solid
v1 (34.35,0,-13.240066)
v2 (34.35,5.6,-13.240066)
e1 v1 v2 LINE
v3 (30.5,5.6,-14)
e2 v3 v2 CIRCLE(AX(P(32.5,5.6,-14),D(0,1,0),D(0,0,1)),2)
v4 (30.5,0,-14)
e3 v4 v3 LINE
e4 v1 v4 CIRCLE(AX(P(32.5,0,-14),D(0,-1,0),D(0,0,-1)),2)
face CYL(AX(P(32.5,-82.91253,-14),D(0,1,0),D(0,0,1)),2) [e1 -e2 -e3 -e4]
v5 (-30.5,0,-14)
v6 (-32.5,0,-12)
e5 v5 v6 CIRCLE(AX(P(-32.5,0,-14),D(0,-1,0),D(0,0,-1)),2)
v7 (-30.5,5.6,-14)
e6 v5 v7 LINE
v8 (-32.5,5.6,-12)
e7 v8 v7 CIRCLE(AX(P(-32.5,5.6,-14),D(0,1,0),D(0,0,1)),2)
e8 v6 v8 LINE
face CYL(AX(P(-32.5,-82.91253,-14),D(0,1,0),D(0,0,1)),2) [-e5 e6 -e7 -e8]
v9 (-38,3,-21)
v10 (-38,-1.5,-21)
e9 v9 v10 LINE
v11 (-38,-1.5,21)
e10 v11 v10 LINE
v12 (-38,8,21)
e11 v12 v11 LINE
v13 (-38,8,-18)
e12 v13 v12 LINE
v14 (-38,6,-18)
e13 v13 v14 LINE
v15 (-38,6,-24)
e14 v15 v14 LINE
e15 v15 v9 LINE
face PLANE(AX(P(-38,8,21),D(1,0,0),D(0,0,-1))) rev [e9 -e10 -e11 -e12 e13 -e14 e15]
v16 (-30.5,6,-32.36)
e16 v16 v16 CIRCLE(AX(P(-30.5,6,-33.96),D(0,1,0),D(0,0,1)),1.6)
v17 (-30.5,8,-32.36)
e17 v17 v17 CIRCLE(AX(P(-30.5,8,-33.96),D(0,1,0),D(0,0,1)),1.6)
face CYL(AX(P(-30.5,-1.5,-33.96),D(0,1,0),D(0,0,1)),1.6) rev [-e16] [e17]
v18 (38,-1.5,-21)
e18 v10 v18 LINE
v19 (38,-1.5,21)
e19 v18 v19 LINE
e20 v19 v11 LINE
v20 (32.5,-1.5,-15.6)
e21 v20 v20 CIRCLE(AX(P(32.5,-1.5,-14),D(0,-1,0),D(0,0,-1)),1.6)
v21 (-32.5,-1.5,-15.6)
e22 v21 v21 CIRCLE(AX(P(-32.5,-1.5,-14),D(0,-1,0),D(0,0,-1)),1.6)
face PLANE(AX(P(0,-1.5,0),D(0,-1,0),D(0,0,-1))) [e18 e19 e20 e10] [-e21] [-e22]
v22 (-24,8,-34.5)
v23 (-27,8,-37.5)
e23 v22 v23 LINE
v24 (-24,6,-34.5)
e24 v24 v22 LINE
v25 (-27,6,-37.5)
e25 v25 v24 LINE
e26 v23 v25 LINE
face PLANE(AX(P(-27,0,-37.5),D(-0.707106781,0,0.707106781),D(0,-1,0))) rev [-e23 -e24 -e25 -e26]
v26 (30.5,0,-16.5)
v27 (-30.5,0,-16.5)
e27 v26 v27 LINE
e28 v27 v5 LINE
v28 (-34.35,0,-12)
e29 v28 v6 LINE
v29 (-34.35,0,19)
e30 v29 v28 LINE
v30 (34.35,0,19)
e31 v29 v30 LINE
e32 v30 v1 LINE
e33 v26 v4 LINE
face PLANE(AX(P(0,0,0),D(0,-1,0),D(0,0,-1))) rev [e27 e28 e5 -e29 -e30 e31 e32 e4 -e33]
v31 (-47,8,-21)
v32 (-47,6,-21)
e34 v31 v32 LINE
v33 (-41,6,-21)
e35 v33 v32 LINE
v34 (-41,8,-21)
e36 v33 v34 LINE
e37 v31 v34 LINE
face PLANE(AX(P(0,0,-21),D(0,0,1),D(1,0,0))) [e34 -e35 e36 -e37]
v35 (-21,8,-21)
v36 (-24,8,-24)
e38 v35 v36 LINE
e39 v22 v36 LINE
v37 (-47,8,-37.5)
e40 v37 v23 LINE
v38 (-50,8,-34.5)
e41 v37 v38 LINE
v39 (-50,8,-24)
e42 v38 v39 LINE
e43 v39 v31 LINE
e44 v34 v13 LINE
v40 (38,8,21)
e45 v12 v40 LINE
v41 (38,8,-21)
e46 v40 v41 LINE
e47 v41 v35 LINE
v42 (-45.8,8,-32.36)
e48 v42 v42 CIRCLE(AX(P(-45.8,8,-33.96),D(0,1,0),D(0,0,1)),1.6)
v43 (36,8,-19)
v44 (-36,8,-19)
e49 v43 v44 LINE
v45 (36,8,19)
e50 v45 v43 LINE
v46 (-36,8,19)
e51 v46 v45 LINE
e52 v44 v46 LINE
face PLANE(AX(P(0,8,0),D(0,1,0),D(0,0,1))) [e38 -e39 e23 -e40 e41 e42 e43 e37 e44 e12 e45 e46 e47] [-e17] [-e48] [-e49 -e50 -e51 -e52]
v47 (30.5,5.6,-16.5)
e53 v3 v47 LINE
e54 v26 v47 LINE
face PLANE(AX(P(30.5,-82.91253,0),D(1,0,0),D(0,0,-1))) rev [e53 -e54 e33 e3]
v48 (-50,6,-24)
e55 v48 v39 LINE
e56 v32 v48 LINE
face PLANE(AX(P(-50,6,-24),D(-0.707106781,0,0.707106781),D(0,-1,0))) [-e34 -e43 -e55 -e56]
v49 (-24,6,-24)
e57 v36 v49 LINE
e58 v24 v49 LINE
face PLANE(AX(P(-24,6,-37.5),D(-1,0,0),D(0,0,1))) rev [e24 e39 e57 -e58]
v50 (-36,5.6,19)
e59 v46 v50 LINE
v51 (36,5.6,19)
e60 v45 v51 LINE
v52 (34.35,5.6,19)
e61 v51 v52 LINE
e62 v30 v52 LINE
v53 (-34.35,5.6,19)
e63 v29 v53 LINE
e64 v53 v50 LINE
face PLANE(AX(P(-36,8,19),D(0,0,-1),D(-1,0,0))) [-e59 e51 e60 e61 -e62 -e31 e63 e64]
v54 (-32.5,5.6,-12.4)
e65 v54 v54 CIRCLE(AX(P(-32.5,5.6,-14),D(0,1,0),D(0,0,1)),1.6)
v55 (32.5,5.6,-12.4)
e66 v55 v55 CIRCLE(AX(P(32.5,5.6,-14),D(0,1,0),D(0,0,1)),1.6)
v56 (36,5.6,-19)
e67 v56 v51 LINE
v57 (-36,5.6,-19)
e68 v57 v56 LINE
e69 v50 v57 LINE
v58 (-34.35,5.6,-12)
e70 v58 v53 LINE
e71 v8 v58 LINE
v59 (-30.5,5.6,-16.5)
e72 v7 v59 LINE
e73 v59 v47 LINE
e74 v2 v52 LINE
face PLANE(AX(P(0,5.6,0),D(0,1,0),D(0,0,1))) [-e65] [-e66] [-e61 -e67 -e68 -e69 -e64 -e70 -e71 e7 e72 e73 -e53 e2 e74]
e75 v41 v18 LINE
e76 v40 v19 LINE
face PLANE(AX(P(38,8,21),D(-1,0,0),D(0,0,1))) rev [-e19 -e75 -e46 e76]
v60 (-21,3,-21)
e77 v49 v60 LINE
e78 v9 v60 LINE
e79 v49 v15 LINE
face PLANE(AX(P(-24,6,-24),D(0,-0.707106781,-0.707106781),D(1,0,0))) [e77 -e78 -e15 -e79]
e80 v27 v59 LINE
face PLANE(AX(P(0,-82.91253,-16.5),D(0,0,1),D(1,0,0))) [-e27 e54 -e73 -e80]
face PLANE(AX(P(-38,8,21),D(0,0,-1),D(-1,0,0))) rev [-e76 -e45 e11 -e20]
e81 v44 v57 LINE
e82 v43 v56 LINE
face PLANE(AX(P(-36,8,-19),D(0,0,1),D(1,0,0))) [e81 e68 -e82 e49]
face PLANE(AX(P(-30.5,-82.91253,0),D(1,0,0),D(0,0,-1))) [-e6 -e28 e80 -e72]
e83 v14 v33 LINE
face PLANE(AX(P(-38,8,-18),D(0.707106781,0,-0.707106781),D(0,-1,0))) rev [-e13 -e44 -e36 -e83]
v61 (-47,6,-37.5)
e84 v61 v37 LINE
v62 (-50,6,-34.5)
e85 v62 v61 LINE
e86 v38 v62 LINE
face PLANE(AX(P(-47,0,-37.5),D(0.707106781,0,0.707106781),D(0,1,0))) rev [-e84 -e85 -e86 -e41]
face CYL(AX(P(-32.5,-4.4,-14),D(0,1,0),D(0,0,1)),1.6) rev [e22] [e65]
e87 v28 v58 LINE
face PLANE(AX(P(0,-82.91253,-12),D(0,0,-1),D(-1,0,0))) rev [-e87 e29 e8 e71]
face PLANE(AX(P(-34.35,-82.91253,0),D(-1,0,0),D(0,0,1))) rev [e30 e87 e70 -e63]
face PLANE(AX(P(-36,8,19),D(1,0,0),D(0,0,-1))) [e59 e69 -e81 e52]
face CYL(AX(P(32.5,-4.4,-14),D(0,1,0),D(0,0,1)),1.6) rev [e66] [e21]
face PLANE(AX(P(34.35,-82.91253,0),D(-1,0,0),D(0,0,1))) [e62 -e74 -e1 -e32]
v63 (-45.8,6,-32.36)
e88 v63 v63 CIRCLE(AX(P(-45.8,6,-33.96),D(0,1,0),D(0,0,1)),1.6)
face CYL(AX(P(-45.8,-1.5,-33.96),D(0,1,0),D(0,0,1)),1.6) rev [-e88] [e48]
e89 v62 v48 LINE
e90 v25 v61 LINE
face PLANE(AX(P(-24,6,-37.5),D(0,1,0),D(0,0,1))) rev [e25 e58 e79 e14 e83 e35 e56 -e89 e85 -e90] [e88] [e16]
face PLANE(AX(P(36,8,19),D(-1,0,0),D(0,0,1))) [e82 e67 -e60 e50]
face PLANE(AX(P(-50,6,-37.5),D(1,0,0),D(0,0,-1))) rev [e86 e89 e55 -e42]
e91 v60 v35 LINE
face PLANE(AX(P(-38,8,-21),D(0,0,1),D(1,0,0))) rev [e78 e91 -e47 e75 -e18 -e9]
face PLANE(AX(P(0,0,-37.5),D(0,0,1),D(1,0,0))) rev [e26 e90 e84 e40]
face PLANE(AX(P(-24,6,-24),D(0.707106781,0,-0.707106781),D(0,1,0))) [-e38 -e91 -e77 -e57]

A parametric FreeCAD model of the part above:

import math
import FreeCAD as App
import Part
import Sketcher
from FreeCAD import Vector


def edges_at(feature, points):
    """Names of the edges that pass closest to the given points."""
    edges = feature.Shape.Edges
    near = lambda p: min(range(len(edges)), key=lambda i: edges[i].distToShape(Part.Vertex(*p))[0])
    return sorted({f"Edge{near(p) + 1}" for p in points})


def add_polygon(sketch, points):
    """Adds a closed chain of lines whose ends are joined by coincident constraints."""
    first, n = sketch.GeometryCount, len(points)
    for a, b in zip(points, points[1:] + points[:1]):
        sketch.addGeometry(Part.LineSegment(App.Vector(*a, 0), App.Vector(*b, 0)), False)
    for i in range(n):
        sketch.addConstraint(Sketcher.Constraint("Coincident", first + i, 2, first + (i + 1) % n, 1))

doc = App.newDocument("Part")
body = doc.addObject("PartDesign::Body", "Body")

# Sketch on XZ plane
sketch1 = body.newObject("Sketcher::SketchObject", "Sketch")
sketch1.AttachmentSupport = (doc.getObject("XZ_Plane"), [""])
sketch1.MapMode = "FlatFace"
add_polygon(sketch1, [(-38, -21), (-38, 21), (38, 21), (38, -21)])  # lines 0-3
add_polygon(sketch1, [(36, 19), (-36, 19), (-36, -19), (36, -19)])  # lines 4-7
sketch1.addConstraint([
    Sketcher.Constraint("Vertical", 0),
    Sketcher.Constraint("Horizontal", 1),
    Sketcher.Constraint("Vertical", 2),
    Sketcher.Constraint("Horizontal", 3),
    Sketcher.Constraint("Horizontal", 4),
    Sketcher.Constraint("Vertical", 5),
    Sketcher.Constraint("Horizontal", 6),
    Sketcher.Constraint("Vertical", 7),
    Sketcher.Constraint("Symmetric", 0, 2, 2, 2, -1, 1),
    Sketcher.Constraint("Symmetric", 4, 2, 6, 2, -1, 1),
    Sketcher.Constraint("DistanceX", 1, 1, 1, 2, 76.0),
    Sketcher.Constraint("DistanceX", 4, 2, 4, 1, 72.0),
    Sketcher.Constraint("DistanceY", 0, 1, 0, 2, 42.0),
    Sketcher.Constraint("DistanceY", 5, 2, 5, 1, 38.0),
])
pad1 = body.newObject("PartDesign::Pad", "Pad")
pad1.Profile = sketch1
pad1.Length = 8
pad1.Reversed = True

# Sketch on XZ plane
sketch2 = body.newObject("Sketcher::SketchObject", "Sketch001")
sketch2.AttachmentSupport = (doc.getObject("XZ_Plane"), [""])
sketch2.MapMode = "FlatFace"
add_polygon(sketch2, [(-38, 21), (-38, -21), (38, -21), (38, 21)])  # lines 0-3
sketch2.addConstraint([
    Sketcher.Constraint("Vertical", 0),
    Sketcher.Constraint("Horizontal", 1),
    Sketcher.Constraint("Vertical", 2),
    Sketcher.Constraint("Horizontal", 3),
    Sketcher.Constraint("Symmetric", 0, 2, 2, 2, -1, 1),
    Sketcher.Constraint("DistanceX", 1, 1, 1, 2, 76.0),
    Sketcher.Constraint("DistanceY", 0, 2, 0, 1, 42.0),
])
pad2 = body.newObject("PartDesign::Pad", "Pad001")
pad2.Profile = sketch2
pad2.Length = 1.5

# Sketch on XZ plane
sketch3 = body.newObject("Sketcher::SketchObject", "Sketch002")
sketch3.AttachmentSupport = (doc.getObject("XZ_Plane"), [""])
sketch3.MapMode = "FlatFace"
sketch3.AttachmentOffset = App.Placement(Vector(0, 0, -5.6), App.Rotation())
sketch3.addGeometry([
    Part.LineSegment(Vector(34.4, 19, 0), Vector(36, 19, 0)),  # 0
    Part.LineSegment(Vector(36, 19, 0), Vector(36, -19, 0)),  # 1
    Part.LineSegment(Vector(36, -19, 0), Vector(-36, -19, 0)),  # 2
    Part.LineSegment(Vector(-36, -19, 0), Vector(-36, 19, 0)),  # 3
    Part.LineSegment(Vector(-36, 19, 0), Vector(-34.4, 19, 0)),  # 4
    Part.LineSegment(Vector(-34.4, 19, 0), Vector(-34.4, -12, 0)),  # 5
    Part.LineSegment(Vector(-34.4, -12, 0), Vector(-32.5, -12, 0)),  # 6
    Part.ArcOfCircle(Part.Circle(Vector(-32.5, -14, 0), Vector(0, 0, 1), 2), math.radians(0), math.radians(90)),  # 7
    Part.LineSegment(Vector(-30.5, -14, 0), Vector(-30.5, -16.5, 0)),  # 8
    Part.LineSegment(Vector(-30.5, -16.5, 0), Vector(30.5, -16.5, 0)),  # 9
    Part.LineSegment(Vector(30.5, -16.5, 0), Vector(30.5, -14, 0)),  # 10
    Part.ArcOfCircle(Part.Circle(Vector(32.5, -14, 0), Vector(0, 0, 1), 2), math.radians(90), math.radians(180)),  # 11
    Part.ArcOfCircle(Part.Circle(Vector(32.5, -14, 0), Vector(0, 0, 1), 2), math.radians(22), math.radians(90)),  # 12
    Part.LineSegment(Vector(34.4, -13.2, 0), Vector(34.4, 19, 0)),  # 13
], False)
sketch3.addConstraint([
    Sketcher.Constraint("Coincident", 0, 2, 1, 1),
    Sketcher.Constraint("Coincident", 1, 2, 2, 1),
    Sketcher.Constraint("Coincident", 2, 2, 3, 1),
    Sketcher.Constraint("Coincident", 3, 2, 4, 1),
    Sketcher.Constraint("Coincident", 4, 2, 5, 1),
    Sketcher.Constraint("Coincident", 5, 2, 6, 1),
    Sketcher.Constraint("Tangent", 6, 2, 7, 2),
    Sketcher.Constraint("Tangent", 7, 1, 8, 1),
    Sketcher.Constraint("Coincident", 8, 2, 9, 1),
    Sketcher.Constraint("Coincident", 9, 2, 10, 1),
    Sketcher.Constraint("Tangent", 10, 2, 11, 2),
    Sketcher.Constraint("Tangent", 11, 1, 12, 2),
    Sketcher.Constraint("Coincident", 12, 1, 13, 1),
    Sketcher.Constraint("Coincident", 13, 2, 0, 1),
    Sketcher.Constraint("Horizontal", 0),
    Sketcher.Constraint("Vertical", 1),
    Sketcher.Constraint("Horizontal", 2),
    Sketcher.Constraint("Vertical", 3),
    Sketcher.Constraint("Horizontal", 4),
    Sketcher.Constraint("Vertical", 5),
    Sketcher.Constraint("Horizontal", 6),
    Sketcher.Constraint("Vertical", 8),
    Sketcher.Constraint("Horizontal", 9),
    Sketcher.Constraint("Vertical", 10),
    Sketcher.Constraint("Vertical", 13),
    Sketcher.Constraint("Equal", 7, 11),
    Sketcher.Constraint("Equal", 11, 12),
    Sketcher.Constraint("Symmetric", 0, 2, 2, 2, -1, 1),
    Sketcher.Constraint("Symmetric", 7, 3, 11, 3, -2),
    Sketcher.Constraint("Symmetric", 4, 2, 13, 2, -2),
    Sketcher.Constraint("Vertical", 12, 3, 11, 1),
    Sketcher.Constraint("Radius", 7, 2.0),
    Sketcher.Constraint("DistanceX", 2, 2, 2, 1, 72.0),
    Sketcher.Constraint("DistanceX", 9, 1, 9, 2, 61.0),
    Sketcher.Constraint("DistanceY", 1, 2, 1, 1, 38.0),
    Sketcher.Constraint("DistanceY", 5, 2, 5, 1, 31.0),
    Sketcher.Constraint("DistanceY", 8, 2, 8, 1, 2.5),
    Sketcher.Constraint("DistanceX", 0, 1, 0, 2, 1.65),
])
pad3 = body.newObject("PartDesign::Pad", "Pad002")
pad3.Profile = sketch3
pad3.Length = 7.1

# Sketch on XZ plane
sketch4 = body.newObject("Sketcher::SketchObject", "Sketch003")
sketch4.AttachmentSupport = (doc.getObject("XZ_Plane"), [""])
sketch4.MapMode = "FlatFace"
sketch4.AttachmentOffset = App.Placement(Vector(0, 0, -5.6), App.Rotation())
sketch4.addGeometry([
    Part.Circle(Vector(32.5, -14, 0), Vector(0, 0, 1), 1.6),
    Part.Circle(Vector(-32.5, -14, 0), Vector(0, 0, 1), 1.6),
], False)
sketch4.addConstraint([
    Sketcher.Constraint("Equal", 0, 1),
    Sketcher.Constraint("Symmetric", 0, 3, 1, 3, -2),
    Sketcher.Constraint("Diameter", 0, 3.2),
    Sketcher.Constraint("DistanceY", 0, 3, -1, 1, 14.0),
    Sketcher.Constraint("DistanceX", 1, 3, 0, 3, 65.0),
])
pocket1 = body.newObject("PartDesign::Pocket", "Pocket")
pocket1.Profile = sketch4
pocket1.Length = 10
pocket1.Reversed = True

# Sketch on XY plane
sketch5 = body.newObject("Sketcher::SketchObject", "Sketch004")
sketch5.AttachmentSupport = (doc.getObject("XY_Plane"), [""])
sketch5.MapMode = "FlatFace"
sketch5.AttachmentOffset = App.Placement(Vector(0, 0, -21), App.Rotation())
add_polygon(sketch5, [(-24, 8), (-24, 6), (-50, 6), (-50, 8)])  # lines 0-3
sketch5.addConstraint([
    Sketcher.Constraint("Vertical", 0),
    Sketcher.Constraint("Horizontal", 1),
    Sketcher.Constraint("Vertical", 2),
    Sketcher.Constraint("Horizontal", 3),
    Sketcher.Constraint("DistanceX", 1, 2, 1, 1, 26.0),
    Sketcher.Constraint("DistanceY", 0, 2, 0, 1, 2.0),
    Sketcher.Constraint("DistanceX", 0, 2, -1, 1, 24.0),
    Sketcher.Constraint("DistanceY", -1, 1, 0, 2, 6.0),
])
pad4 = body.newObject("PartDesign::Pad", "Pad003")
pad4.Profile = sketch5
pad4.Length = 16.5
pad4.Reversed = True
doc.recompute()

chamfer = body.newObject("PartDesign::Chamfer", "Chamfer")
chamfer.Base = (pad4, edges_at(pad4, [(-31, 6, -21)]))
chamfer.Size = 3
doc.recompute()

chamfer2 = body.newObject("PartDesign::Chamfer", "Chamfer001")
chamfer2.Base = (chamfer, edges_at(chamfer, [
    (-24, 5.5, -21),
    (-24, 7, -37.5),
    (-50, 7, -37.5),
    (-50, 7, -21),
]))
chamfer2.Size = 3

# Sketch on XZ plane
sketch6 = body.newObject("Sketcher::SketchObject", "Sketch005")
sketch6.AttachmentSupport = (doc.getObject("XZ_Plane"), [""])
sketch6.MapMode = "FlatFace"
sketch6.AttachmentOffset = App.Placement(Vector(0, 0, -8), App.Rotation())
sketch6.addGeometry([
    Part.Circle(Vector(-30.5, -34, 0), Vector(0, 0, 1), 1.6),
    Part.Circle(Vector(-45.8, -34, 0), Vector(0, 0, 1), 1.6),
], False)
sketch6.addConstraint([
    Sketcher.Constraint("Equal", 0, 1),
    Sketcher.Constraint("Horizontal", 0, 3, 1, 3),
    Sketcher.Constraint("Diameter", 0, 3.2),
    Sketcher.Constraint("DistanceX", 0, 3, -1, 1, 30.5),
    Sketcher.Constraint("DistanceX", 1, 3, -1, 1, 45.8),
    Sketcher.Constraint("DistanceY", 0, 3, -1, 1, 33.96),
])
pocket2 = body.newObject("PartDesign::Pocket", "Pocket001")
pocket2.Profile = sketch6
pocket2.Type = "ThroughAll"
pocket2.Midplane = True
doc.recompute()

chamfer3 = body.newObject("PartDesign::Chamfer", "Chamfer002")
chamfer3.Base = (pocket2, edges_at(pocket2, [(-38, 7, -21)]))
chamfer3.Size = 3

doc.recompute()
